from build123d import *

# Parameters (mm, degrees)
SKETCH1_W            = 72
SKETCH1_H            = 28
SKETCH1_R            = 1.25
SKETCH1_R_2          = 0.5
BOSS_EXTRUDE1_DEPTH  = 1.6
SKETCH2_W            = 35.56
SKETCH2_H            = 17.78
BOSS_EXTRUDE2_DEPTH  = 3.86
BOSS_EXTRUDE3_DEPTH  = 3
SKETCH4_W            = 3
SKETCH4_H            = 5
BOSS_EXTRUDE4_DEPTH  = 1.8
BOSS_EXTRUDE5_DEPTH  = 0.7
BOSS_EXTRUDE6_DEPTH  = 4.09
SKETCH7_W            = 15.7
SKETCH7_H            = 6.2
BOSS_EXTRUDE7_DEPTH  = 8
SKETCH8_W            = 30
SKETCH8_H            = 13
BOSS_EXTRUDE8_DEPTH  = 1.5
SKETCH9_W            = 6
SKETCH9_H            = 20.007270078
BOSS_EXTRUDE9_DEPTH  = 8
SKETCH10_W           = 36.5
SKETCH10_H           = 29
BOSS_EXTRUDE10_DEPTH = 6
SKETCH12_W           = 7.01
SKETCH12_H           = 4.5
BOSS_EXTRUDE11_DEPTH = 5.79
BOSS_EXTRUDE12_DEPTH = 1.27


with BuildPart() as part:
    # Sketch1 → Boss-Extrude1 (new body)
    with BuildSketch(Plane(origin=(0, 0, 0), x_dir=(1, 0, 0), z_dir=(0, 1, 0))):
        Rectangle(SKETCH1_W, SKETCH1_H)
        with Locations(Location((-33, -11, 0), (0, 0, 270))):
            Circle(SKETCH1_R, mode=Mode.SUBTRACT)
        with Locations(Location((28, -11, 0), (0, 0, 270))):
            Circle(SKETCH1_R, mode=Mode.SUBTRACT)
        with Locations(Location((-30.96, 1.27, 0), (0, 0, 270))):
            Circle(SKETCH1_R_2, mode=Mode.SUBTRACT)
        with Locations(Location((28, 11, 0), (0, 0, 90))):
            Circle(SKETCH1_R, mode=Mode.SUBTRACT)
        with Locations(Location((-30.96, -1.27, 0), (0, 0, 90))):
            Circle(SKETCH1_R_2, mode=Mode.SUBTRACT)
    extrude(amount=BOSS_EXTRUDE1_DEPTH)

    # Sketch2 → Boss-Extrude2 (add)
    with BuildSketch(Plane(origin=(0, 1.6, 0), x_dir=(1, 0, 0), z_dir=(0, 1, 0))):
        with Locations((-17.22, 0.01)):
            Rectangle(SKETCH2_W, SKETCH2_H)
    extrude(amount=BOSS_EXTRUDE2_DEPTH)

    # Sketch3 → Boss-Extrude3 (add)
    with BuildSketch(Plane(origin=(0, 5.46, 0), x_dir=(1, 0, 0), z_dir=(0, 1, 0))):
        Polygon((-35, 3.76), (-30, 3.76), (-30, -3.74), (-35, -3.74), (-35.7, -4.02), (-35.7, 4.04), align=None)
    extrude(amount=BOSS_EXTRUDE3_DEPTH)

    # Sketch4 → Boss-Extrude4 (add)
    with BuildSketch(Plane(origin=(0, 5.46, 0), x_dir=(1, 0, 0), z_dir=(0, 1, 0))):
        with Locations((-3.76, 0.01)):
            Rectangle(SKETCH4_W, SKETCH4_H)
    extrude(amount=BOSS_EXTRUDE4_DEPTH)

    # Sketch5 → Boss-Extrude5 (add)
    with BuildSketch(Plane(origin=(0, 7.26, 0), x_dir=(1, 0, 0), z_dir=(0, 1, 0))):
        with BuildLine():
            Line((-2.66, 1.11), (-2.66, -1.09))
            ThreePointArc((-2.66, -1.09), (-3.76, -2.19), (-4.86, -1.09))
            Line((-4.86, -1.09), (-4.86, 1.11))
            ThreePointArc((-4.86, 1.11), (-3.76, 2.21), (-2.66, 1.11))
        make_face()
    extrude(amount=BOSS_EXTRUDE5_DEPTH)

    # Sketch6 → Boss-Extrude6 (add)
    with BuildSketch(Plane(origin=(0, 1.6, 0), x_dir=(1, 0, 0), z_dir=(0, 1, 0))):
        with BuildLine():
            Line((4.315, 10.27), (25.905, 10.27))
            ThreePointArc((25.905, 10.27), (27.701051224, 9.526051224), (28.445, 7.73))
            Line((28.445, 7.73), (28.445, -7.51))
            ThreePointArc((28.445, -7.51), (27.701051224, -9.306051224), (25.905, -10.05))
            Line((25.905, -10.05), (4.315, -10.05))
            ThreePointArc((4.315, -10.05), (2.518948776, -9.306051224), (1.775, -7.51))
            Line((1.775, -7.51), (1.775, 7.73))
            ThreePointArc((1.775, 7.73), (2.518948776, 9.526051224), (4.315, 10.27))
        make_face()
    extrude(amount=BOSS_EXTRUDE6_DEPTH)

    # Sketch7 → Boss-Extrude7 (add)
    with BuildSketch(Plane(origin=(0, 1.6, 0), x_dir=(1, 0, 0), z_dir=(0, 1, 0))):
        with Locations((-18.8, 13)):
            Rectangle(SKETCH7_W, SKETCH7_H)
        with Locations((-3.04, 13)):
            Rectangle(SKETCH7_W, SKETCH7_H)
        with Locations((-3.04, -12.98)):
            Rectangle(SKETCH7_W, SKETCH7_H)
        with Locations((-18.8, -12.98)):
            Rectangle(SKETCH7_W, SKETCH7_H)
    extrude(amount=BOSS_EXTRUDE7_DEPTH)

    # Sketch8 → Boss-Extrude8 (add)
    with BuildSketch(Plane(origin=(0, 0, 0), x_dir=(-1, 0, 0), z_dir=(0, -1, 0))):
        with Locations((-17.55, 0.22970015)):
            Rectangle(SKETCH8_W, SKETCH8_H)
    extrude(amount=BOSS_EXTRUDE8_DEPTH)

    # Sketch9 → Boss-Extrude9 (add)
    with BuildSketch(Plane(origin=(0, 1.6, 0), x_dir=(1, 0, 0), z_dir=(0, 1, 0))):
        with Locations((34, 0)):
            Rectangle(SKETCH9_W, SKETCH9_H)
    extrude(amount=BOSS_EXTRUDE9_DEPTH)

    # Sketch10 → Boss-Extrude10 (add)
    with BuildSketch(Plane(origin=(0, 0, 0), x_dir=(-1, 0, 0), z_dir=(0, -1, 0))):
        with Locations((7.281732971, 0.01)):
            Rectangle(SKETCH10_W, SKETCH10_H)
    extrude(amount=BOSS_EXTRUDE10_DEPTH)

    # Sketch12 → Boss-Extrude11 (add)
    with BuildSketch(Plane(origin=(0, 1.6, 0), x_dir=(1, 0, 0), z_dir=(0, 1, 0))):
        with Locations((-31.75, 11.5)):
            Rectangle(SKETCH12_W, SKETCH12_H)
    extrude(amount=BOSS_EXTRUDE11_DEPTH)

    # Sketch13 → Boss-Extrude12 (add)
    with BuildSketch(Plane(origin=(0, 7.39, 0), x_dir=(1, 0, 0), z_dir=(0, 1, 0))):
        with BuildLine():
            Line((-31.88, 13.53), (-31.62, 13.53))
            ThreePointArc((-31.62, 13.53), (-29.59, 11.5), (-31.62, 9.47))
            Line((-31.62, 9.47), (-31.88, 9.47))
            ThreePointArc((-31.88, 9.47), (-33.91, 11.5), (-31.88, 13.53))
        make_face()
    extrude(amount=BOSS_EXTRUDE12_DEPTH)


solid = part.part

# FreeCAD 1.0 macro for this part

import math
import FreeCAD as App
import Part
import Sketcher
from FreeCAD import Vector
Q = App.Units.Quantity


def add_polygon(sketch, points):
    """Adds a closed chain of lines whose ends are joined by coincident constraints."""
    first, n = sketch.GeometryCount, len(points)
    for a, b in zip(points, points[1:] + points[:1]):
        sketch.addGeometry(Part.LineSegment(App.Vector(*a, 0), App.Vector(*b, 0)), False)
    for i in range(n):
        sketch.addConstraint(Sketcher.Constraint("Coincident", first + i, 2, first + (i + 1) % n, 1))

doc = App.newDocument("Part")
params = doc.addObject("Spreadsheet::Sheet", "Params")
for row, (alias, value) in enumerate([
    ("sketch1_diameter", "1 mm"),
    ("sketch1_diameter2", "2.5 mm"),
    ("sketch1_width", "72 mm"),
    ("sketch1_height", "28 mm"),
    ("pad1_length", "1.6 mm"),
    ("sketch2_width", "35.56 mm"),
    ("sketch2_height", "17.78 mm"),
    ("pad2_length", "3.86 mm"),
    ("sketch3_width", "5 mm"),
    ("sketch3_height", "7.5 mm"),
    ("sketch3_height2", "8.06 mm"),
    ("pad3_length", "3 mm"),
    ("sketch4_width", "3 mm"),
    ("sketch4_height", "5 mm"),
    ("pad4_length", "1.8 mm"),
    ("sketch5_radius", "1.1 mm"),
    ("sketch5_height", "2.2 mm"),
    ("pad5_length", "0.7 mm"),
    ("sketch6_radius", "2.54 mm"),
    ("sketch6_width", "21.59 mm"),
    ("sketch6_height", "15.24 mm"),
    ("pad6_length", "4.09 mm"),
    ("sketch7_width", "15.7 mm"),
    ("sketch7_height", "6.2 mm"),
    ("pad7_length", "8 mm"),
    ("sketch8_width", "30 mm"),
    ("sketch8_height", "13 mm"),
    ("pad8_length", "1.5 mm"),
    ("sketch9_width", "6 mm"),
    ("pad9_length", "8 mm"),
    ("sketch10_height", "29 mm"),
    ("sketch10_width", "36.5 mm"),
    ("pad10_length", "6 mm"),
    ("sketch11_height", "4.5 mm"),
    ("sketch11_width", "7.01 mm"),
    ("pad11_length", "5.79 mm"),
    ("sketch12_radius", "2.03 mm"),
    ("sketch12_width", "0.26 mm"),
    ("pad12_length", "1.27 mm"),
], start=1):
    params.set(f"A{row}", alias)
    params.set(f"B{row}", "=" + value)
    params.setAlias(f"B{row}", alias)

body = doc.addObject("PartDesign::Body", "Body")

sketch1 = body.newObject("Sketcher::SketchObject", "Sketch")
sketch1.AttachmentSupport = (doc.getObject("XZ_Plane"), [""])
sketch1.MapMode = "FlatFace"
add_polygon(sketch1, [(-36, -14), (-36, 14), (36, 14), (36, -14)])
sketch1.addGeometry(Part.Circle(Vector(-33, 11, 0), Vector(0, 0, 1), 1.25), False)
sketch1.addGeometry(Part.Circle(Vector(-30.96, 1.27, 0), Vector(0, 0, 1), 0.5), False)
sketch1.addGeometry(Part.Circle(Vector(28, 11, 0), Vector(0, 0, 1), 1.25), False)
sketch1.addGeometry(Part.Circle(Vector(-30.96, -1.27, 0), Vector(0, 0, 1), 0.5), False)
sketch1.addGeometry(Part.Circle(Vector(28, -11, 0), Vector(0, 0, 1), 1.25), False)
sketch1.addConstraint([
    Sketcher.Constraint("Vertical", 0),
    Sketcher.Constraint("Horizontal", 1),
    Sketcher.Constraint("Vertical", 2),
    Sketcher.Constraint("Horizontal", 3),
    Sketcher.Constraint("Equal", 4, 6),
    Sketcher.Constraint("Equal", 5, 7),
    Sketcher.Constraint("Equal", 6, 8),
    Sketcher.Constraint("Symmetric", 0, 2, 2, 2, -1, 1),
    Sketcher.Constraint("Symmetric", 5, 3, 7, 3, -1),
    Sketcher.Constraint("Symmetric", 6, 3, 8, 3, -1),
    Sketcher.Constraint("Horizontal", 4, 3, 6, 3),
    Sketcher.Constraint("Diameter", 5, Q("1 mm")),
    Sketcher.Constraint("Diameter", 4, Q("2.5 mm")),
    Sketcher.Constraint("DistanceX", 1, 1, 1, 2, Q("72 mm")),
    Sketcher.Constraint("DistanceY", 0, 1, 0, 2, Q("28 mm")),
    Sketcher.Constraint("DistanceX", 4, 3, -1, 1, Q("33 mm")),
    Sketcher.Constraint("DistanceY", -1, 1, 4, 3, Q("11 mm")),
    Sketcher.Constraint("DistanceX", -1, 1, 6, 3, Q("28 mm")),
    Sketcher.Constraint("DistanceX", 5, 3, -1, 1, Q("30.96 mm")),
    Sketcher.Constraint("DistanceY", -1, 1, 5, 3, Q("1.27 mm")),
])
sketch1.setExpression("Constraints[15]", "Params.sketch1_diameter")
sketch1.setExpression("Constraints[16]", "Params.sketch1_diameter2")
sketch1.setExpression("Constraints[17]", "Params.sketch1_width")
sketch1.setExpression("Constraints[18]", "Params.sketch1_height")
pad1 = body.newObject("PartDesign::Pad", "Pad")
pad1.Profile = sketch1
pad1.setExpression("Length", "Params.pad1_length")
pad1.Reversed = True

sketch2 = body.newObject("Sketcher::SketchObject", "Sketch001")
sketch2.AttachmentSupport = (doc.getObject("XZ_Plane"), [""])
sketch2.MapMode = "FlatFace"
sketch2.AttachmentOffset = App.Placement(Vector(0, 0, -1.6), App.Rotation())
add_polygon(sketch2, [(-35, -8.9), (-35, 8.88), (0.56, 8.88), (0.56, -8.9)])
sketch2.addConstraint([
    Sketcher.Constraint("Vertical", 0),
    Sketcher.Constraint("Horizontal", 1),
    Sketcher.Constraint("Vertical", 2),
    Sketcher.Constraint("Horizontal", 3),
    Sketcher.Constraint("DistanceX", 0, 2, -1, 1, Q("35 mm")),
    Sketcher.Constraint("DistanceX", 1, 1, 1, 2, Q("35.56 mm")),
    Sketcher.Constraint("DistanceY", 0, 1, 0, 2, Q("17.78 mm")),
    Sketcher.Constraint("DistanceY", 2, 2, -1, 1, Q("8.9 mm")),
])
sketch2.setExpression("Constraints[9]", "Params.sketch2_width")
sketch2.setExpression("Constraints[10]", "Params.sketch2_height")
pad2 = body.newObject("PartDesign::Pad", "Pad001")
pad2.Profile = sketch2
pad2.setExpression("Length", "Params.pad2_length")
pad2.Reversed = True

sketch3 = body.newObject("Sketcher::SketchObject", "Sketch002")
sketch3.AttachmentSupport = (doc.getObject("XZ_Plane"), [""])
sketch3.MapMode = "FlatFace"
sketch3.AttachmentOffset = App.Placement(Vector(0, 0, -5.46), App.Rotation())
add_polygon(sketch3, [(-30, -3.76), (-35, -3.76), (-35.7, -4.04), (-35.7, 4.02), (-35, 3.74), (-30, 3.74)])
sketch3.addConstraint([
    Sketcher.Constraint("Horizontal", 0),
    Sketcher.Constraint("Vertical", 2),
    Sketcher.Constraint("Horizontal", 4),
    Sketcher.Constraint("Vertical", 5),
    Sketcher.Constraint("Vertical", 0, 2, 3, 2),
    Sketcher.Constraint("Equal", 1, 3),
    Sketcher.Constraint("DistanceX", 0, 2, 0, 1, Q("5 mm")),
    Sketcher.Constraint("DistanceY", 5, 2, 5, 1, Q("7.5 mm")),
    Sketcher.Constraint("DistanceX", 0, 2, -1, 1, Q("35 mm")),
    Sketcher.Constraint("DistanceY", 2, 1, 2, 2, Q("8.06 mm")),
    Sketcher.Constraint("DistanceX", 1, 2, -1, 1, Q("35.7 mm")),
    Sketcher.Constraint("DistanceY", 0, 2, -1, 1, Q("3.76 mm")),
])
sketch3.setExpression("Constraints[12]", "Params.sketch3_width")
sketch3.setExpression("Constraints[13]", "Params.sketch3_height")
sketch3.setExpression("Constraints[15]", "Params.sketch3_height2")
pad3 = body.newObject("PartDesign::Pad", "Pad002")
pad3.Profile = sketch3
pad3.setExpression("Length", "Params.pad3_length")
pad3.Reversed = True

sketch4 = body.newObject("Sketcher::SketchObject", "Sketch003")
sketch4.AttachmentSupport = (doc.getObject("XZ_Plane"), [""])
sketch4.MapMode = "FlatFace"
sketch4.AttachmentOffset = App.Placement(Vector(0, 0, -5.46), App.Rotation())
add_polygon(sketch4, [(-5.26, -2.51), (-5.26, 2.49), (-2.26, 2.49), (-2.26, -2.51)])
sketch4.addConstraint([
    Sketcher.Constraint("Vertical", 0),
    Sketcher.Constraint("Horizontal", 1),
    Sketcher.Constraint("Vertical", 2),
    Sketcher.Constraint("Horizontal", 3),
    Sketcher.Constraint("DistanceX", 1, 1, 1, 2, Q("3 mm")),
    Sketcher.Constraint("DistanceY", 0, 1, 0, 2, Q("5 mm")),
    Sketcher.Constraint("DistanceX", 0, 2, -1, 1, Q("5.26 mm")),
    Sketcher.Constraint("DistanceY", -1, 1, 0, 2, Q("2.49 mm")),
])
sketch4.setExpression("Constraints[8]", "Params.sketch4_width")
sketch4.setExpression("Constraints[9]", "Params.sketch4_height")
pad4 = body.newObject("PartDesign::Pad", "Pad003")
pad4.Profile = sketch4
pad4.setExpression("Length", "Params.pad4_length")
pad4.Reversed = True

sketch5 = body.newObject("Sketcher::SketchObject", "Sketch004")
sketch5.AttachmentSupport = (doc.getObject("XZ_Plane"), [""])
sketch5.MapMode = "FlatFace"
sketch5.AttachmentOffset = App.Placement(Vector(0, 0, -7.26), App.Rotation())
sketch5.addGeometry([
    Part.LineSegment(Vector(-2.66, 1.09, 0), Vector(-2.66, -1.11, 0)),
    Part.ArcOfCircle(Part.Circle(Vector(-3.76, -1.11, 0), Vector(0, 0, 1), 1.1), math.radians(180), math.radians(360)),
    Part.LineSegment(Vector(-4.86, -1.11, 0), Vector(-4.86, 1.09, 0)),
    Part.ArcOfCircle(Part.Circle(Vector(-3.76, 1.09, 0), Vector(0, 0, 1), 1.1), math.radians(0), math.radians(180)),
], False)
sketch5.addConstraint([
    Sketcher.Constraint("Tangent", 0, 2, 1, 2),
    Sketcher.Constraint("Tangent", 1, 1, 2, 1),
    Sketcher.Constraint("Tangent", 2, 2, 3, 2),
    Sketcher.Constraint("Tangent", 3, 1, 0, 1),
    Sketcher.Constraint("Vertical", 0),
    Sketcher.Constraint("Vertical", 2),
    Sketcher.Constraint("Radius", 1, Q("1.1 mm")),
    Sketcher.Constraint("DistanceY", 0, 2, 0, 1, Q("2.2 mm")),
    Sketcher.Constraint("DistanceX", 1, 3, -1, 1, Q("3.76 mm")),
    Sketcher.Constraint("DistanceY", 1, 3, -1, 1, Q("1.11 mm")),
])
sketch5.setExpression("Constraints[6]", "Params.sketch5_radius")
sketch5.setExpression("Constraints[7]", "Params.sketch5_height")
pad5 = body.newObject("PartDesign::Pad", "Pad004")
pad5.Profile = sketch5
pad5.setExpression("Length", "Params.pad5_length")
pad5.Reversed = True

sketch6 = body.newObject("Sketcher::SketchObject", "Sketch005")
sketch6.AttachmentSupport = (doc.getObject("XZ_Plane"), [""])
sketch6.MapMode = "FlatFace"
sketch6.AttachmentOffset = App.Placement(Vector(0, 0, -1.6), App.Rotation())
sketch6.addGeometry([
    Part.LineSegment(Vector(25.905, -10.27, 0), Vector(4.315, -10.27, 0)),
    Part.ArcOfCircle(Part.Circle(Vector(4.315, -7.73, 0), Vector(0, 0, 1), 2.54), math.radians(-180), math.radians(-90)),
    Part.LineSegment(Vector(1.775, -7.73, 0), Vector(1.775, 7.51, 0)),
    Part.ArcOfCircle(Part.Circle(Vector(4.315, 7.51, 0), Vector(0, 0, 1), 2.54), math.radians(90), math.radians(180)),
    Part.LineSegment(Vector(4.315, 10.05, 0), Vector(25.905, 10.05, 0)),
    Part.ArcOfCircle(Part.Circle(Vector(25.905, 7.51, 0), Vector(0, 0, 1), 2.54), math.radians(0), math.radians(90)),
    Part.LineSegment(Vector(28.445, 7.51, 0), Vector(28.445, -7.73, 0)),
    Part.ArcOfCircle(Part.Circle(Vector(25.905, -7.73, 0), Vector(0, 0, 1), 2.54), math.radians(-90), math.radians(0)),
], False)
sketch6.addConstraint([
    Sketcher.Constraint("Tangent", 0, 2, 1, 2),
    Sketcher.Constraint("Tangent", 1, 1, 2, 1),
    Sketcher.Constraint("Tangent", 2, 2, 3, 2),
    Sketcher.Constraint("Tangent", 3, 1, 4, 1),
    Sketcher.Constraint("Tangent", 4, 2, 5, 2),
    Sketcher.Constraint("Tangent", 5, 1, 6, 1),
    Sketcher.Constraint("Tangent", 6, 2, 7, 2),
    Sketcher.Constraint("Tangent", 7, 1, 0, 1),
    Sketcher.Constraint("Horizontal", 0),
    Sketcher.Constraint("Vertical", 2),
    Sketcher.Constraint("Horizontal", 4),
    Sketcher.Constraint("Vertical", 6),
    Sketcher.Constraint("Equal", 1, 3),
    Sketcher.Constraint("Equal", 3, 5),
    Sketcher.Constraint("Equal", 5, 7),
    Sketcher.Constraint("Radius", 1, Q("2.54 mm")),
    Sketcher.Constraint("DistanceX", 0, 2, 0, 1, Q("21.59 mm")),
    Sketcher.Constraint("DistanceY", 2, 1, 2, 2, Q("15.24 mm")),
    Sketcher.Constraint("DistanceY", 1, 3, -1, 1, Q("7.73 mm")),
    Sketcher.Constraint("DistanceX", -1, 1, 1, 3, Q("4.315 mm")),
])
sketch6.setExpression("Constraints[15]", "Params.sketch6_radius")
sketch6.setExpression("Constraints[16]", "Params.sketch6_width")
sketch6.setExpression("Constraints[17]", "Params.sketch6_height")
pad6 = body.newObject("PartDesign::Pad", "Pad005")
pad6.Profile = sketch6
pad6.setExpression("Length", "Params.pad6_length")
pad6.Reversed = True

sketch7 = body.newObject("Sketcher::SketchObject", "Sketch006")
sketch7.AttachmentSupport = (doc.getObject("XZ_Plane"), [""])
sketch7.MapMode = "FlatFace"
sketch7.AttachmentOffset = App.Placement(Vector(0, 0, -1.6), App.Rotation())
add_polygon(sketch7, [(-26.65, -16.1), (-26.65, -9.9), (-10.95, -9.9), (-10.95, -16.1)])
add_polygon(sketch7, [(-10.89, -16.1), (-10.89, -9.9), (4.81, -9.9), (4.81, -16.1)])
add_polygon(sketch7, [(-10.89, 9.88), (-10.89, 16.08), (4.81, 16.08), (4.81, 9.88)])
add_polygon(sketch7, [(-26.65, 9.88), (-26.65, 16.08), (-10.95, 16.08), (-10.95, 9.88)])
sketch7.addConstraint([
    Sketcher.Constraint("Vertical", 0),
    Sketcher.Constraint("Horizontal", 1),
    Sketcher.Constraint("Vertical", 2),
    Sketcher.Constraint("Horizontal", 3),
    Sketcher.Constraint("Vertical", 4),
    Sketcher.Constraint("Horizontal", 5),
    Sketcher.Constraint("Vertical", 6),
    Sketcher.Constraint("Horizontal", 7),
    Sketcher.Constraint("Vertical", 8),
    Sketcher.Constraint("Horizontal", 9),
    Sketcher.Constraint("Vertical", 10),
    Sketcher.Constraint("Horizontal", 11),
    Sketcher.Constraint("Vertical", 12),
    Sketcher.Constraint("Horizontal", 13),
    Sketcher.Constraint("Vertical", 14),
    Sketcher.Constraint("Horizontal", 15),
    Sketcher.Constraint("Horizontal", 1, 2, 4, 2),
    Sketcher.Constraint("Horizontal", 3, 2, 6, 2),
    Sketcher.Constraint("Horizontal", 9, 2, 12, 2),
    Sketcher.Constraint("Horizontal", 11, 2, 14, 2),
    Sketcher.Constraint("Vertical", 7, 2, 8, 2),
    Sketcher.Constraint("Vertical", 6, 2, 9, 2),
    Sketcher.Constraint("Vertical", 3, 2, 12, 2),
    Sketcher.Constraint("Vertical", 2, 2, 13, 2),
    Sketcher.Constraint("Equal", 3, 5),
    Sketcher.Constraint("Equal", 6, 8),
    Sketcher.Constraint("DistanceX", 1, 1, 1, 2, Q("15.7 mm")),
    Sketcher.Constraint("DistanceY", 0, 1, 0, 2, Q("6.2 mm")),
    Sketcher.Constraint("DistanceY", 0, 2, -1, 1, Q("9.9 mm")),
    Sketcher.Constraint("DistanceX", 0, 2, -1, 1, Q("26.65 mm")),
    Sketcher.Constraint("DistanceX", 4, 2, -1, 1, Q("10.89 mm")),
    Sketcher.Constraint("DistanceY", -1, 1, 8, 2, Q("16.08 mm")),
])
sketch7.setExpression("Constraints[42]", "Params.sketch7_width")
sketch7.setExpression("Constraints[43]", "Params.sketch7_height")
pad7 = body.newObject("PartDesign::Pad", "Pad006")
pad7.Profile = sketch7
pad7.setExpression("Length", "Params.pad7_length")
pad7.Reversed = True

sketch8 = body.newObject("Sketcher::SketchObject", "Sketch007")
sketch8.AttachmentSupport = (doc.getObject("XZ_Plane"), [""])
sketch8.MapMode = "FlatFace"
add_polygon(sketch8, [(32.55, -6.7297), (32.55, 6.2703), (2.55, 6.2703), (2.55, -6.7297)])
sketch8.addConstraint([
    Sketcher.Constraint("Vertical", 0),
    Sketcher.Constraint("Horizontal", 1),
    Sketcher.Constraint("Vertical", 2),
    Sketcher.Constraint("Horizontal", 3),
    Sketcher.Constraint("DistanceX", 1, 2, 1, 1, Q("30 mm")),
    Sketcher.Constraint("DistanceY", 0, 1, 0, 2, Q("13 mm")),
    Sketcher.Constraint("DistanceX", -1, 1, 0, 2, Q("32.55 mm")),
    Sketcher.Constraint("DistanceY", -1, 1, 0, 2, Q("6.2703 mm")),
])
sketch8.setExpression("Constraints[8]", "Params.sketch8_width")
sketch8.setExpression("Constraints[9]", "Params.sketch8_height")
pad8 = body.newObject("PartDesign::Pad", "Pad007")
pad8.Profile = sketch8
pad8.setExpression("Length", "Params.pad8_length")

sketch9 = body.newObject("Sketcher::SketchObject", "Sketch008")
sketch9.AttachmentSupport = (doc.getObject("XZ_Plane"), [""])
sketch9.MapMode = "FlatFace"
sketch9.AttachmentOffset = App.Placement(Vector(0, 0, -1.6), App.Rotation())
add_polygon(sketch9, [(31, -10.003635), (31, 10.003635), (37, 10.003635), (37, -10.003635)])
sketch9.addConstraint([
    Sketcher.Constraint("Vertical", 0),
    Sketcher.Constraint("Horizontal", 1),
    Sketcher.Constraint("Vertical", 2),
    Sketcher.Constraint("Horizontal", 3),
    Sketcher.Constraint("DistanceX", 1, 1, 1, 2, Q("6 mm")),
    Sketcher.Constraint("DistanceX", -1, 1, 0, 2, Q("31 mm")),
    Sketcher.Constraint("DistanceY", 0, 1, 0, 2, Q("20.00727 mm")),
    Sketcher.Constraint("DistanceY", -1, 1, 0, 2, Q("10.003635 mm")),
])
sketch9.setExpression("Constraints[8]", "Params.sketch9_width")
pad9 = body.newObject("PartDesign::Pad", "Pad008")
pad9.Profile = sketch9
pad9.setExpression("Length", "Params.pad9_length")
pad9.Reversed = True

sketch10 = body.newObject("Sketcher::SketchObject", "Sketch009")
sketch10.AttachmentSupport = (doc.getObject("XZ_Plane"), [""])
sketch10.MapMode = "FlatFace"
add_polygon(sketch10, [(10.968267, -14.51), (10.968267, 14.49), (-25.531733, 14.49), (-25.531733, -14.51)])
sketch10.addConstraint([
    Sketcher.Constraint("Vertical", 0),
    Sketcher.Constraint("Horizontal", 1),
    Sketcher.Constraint("Vertical", 2),
    Sketcher.Constraint("Horizontal", 3),
    Sketcher.Constraint("DistanceY", 0, 1, 0, 2, Q("29 mm")),
    Sketcher.Constraint("DistanceX", 1, 2, 1, 1, Q("36.5 mm")),
    Sketcher.Constraint("DistanceY", -1, 1, 0, 2, Q("14.49 mm")),
    Sketcher.Constraint("DistanceX", -1, 1, 0, 2, Q("10.968267 mm")),
])
sketch10.setExpression("Constraints[8]", "Params.sketch10_height")
sketch10.setExpression("Constraints[9]", "Params.sketch10_width")
pad10 = body.newObject("PartDesign::Pad", "Pad009")
pad10.Profile = sketch10
pad10.setExpression("Length", "Params.pad10_length")

sketch11 = body.newObject("Sketcher::SketchObject", "Sketch010")
sketch11.AttachmentSupport = (doc.getObject("XZ_Plane"), [""])
sketch11.MapMode = "FlatFace"
sketch11.AttachmentOffset = App.Placement(Vector(0, 0, -1.6), App.Rotation())
add_polygon(sketch11, [(-35.255, -13.75), (-35.255, -9.25), (-28.245, -9.25), (-28.245, -13.75)])
sketch11.addConstraint([
    Sketcher.Constraint("Vertical", 0),
    Sketcher.Constraint("Horizontal", 1),
    Sketcher.Constraint("Vertical", 2),
    Sketcher.Constraint("Horizontal", 3),
    Sketcher.Constraint("DistanceY", 0, 1, 0, 2, Q("4.5 mm")),
    Sketcher.Constraint("DistanceX", 1, 1, 1, 2, Q("7.01 mm")),
    Sketcher.Constraint("DistanceY", 0, 2, -1, 1, Q("9.25 mm")),
    Sketcher.Constraint("DistanceX", 0, 2, -1, 1, Q("35.255 mm")),
])
sketch11.setExpression("Constraints[8]", "Params.sketch11_height")
sketch11.setExpression("Constraints[9]", "Params.sketch11_width")
pad11 = body.newObject("PartDesign::Pad", "Pad010")
pad11.Profile = sketch11
pad11.setExpression("Length", "Params.pad11_length")
pad11.Reversed = True

sketch12 = body.newObject("Sketcher::SketchObject", "Sketch011")
sketch12.AttachmentSupport = (doc.getObject("XZ_Plane"), [""])
sketch12.MapMode = "FlatFace"
sketch12.AttachmentOffset = App.Placement(Vector(0, 0, -7.39), App.Rotation())
sketch12.addGeometry([
    Part.LineSegment(Vector(-31.62, -13.53, 0), Vector(-31.88, -13.53, 0)),
    Part.ArcOfCircle(Part.Circle(Vector(-31.88, -11.5, 0), Vector(0, 0, 1), 2.03), math.radians(90), math.radians(270)),
    Part.LineSegment(Vector(-31.88, -9.47, 0), Vector(-31.62, -9.47, 0)),
    Part.ArcOfCircle(Part.Circle(Vector(-31.62, -11.5, 0), Vector(0, 0, 1), 2.03), math.radians(-90), math.radians(90)),
], False)
sketch12.addConstraint([
    Sketcher.Constraint("Tangent", 0, 2, 1, 2),
    Sketcher.Constraint("Tangent", 1, 1, 2, 1),
    Sketcher.Constraint("Tangent", 2, 2, 3, 2),
    Sketcher.Constraint("Tangent", 3, 1, 0, 1),
    Sketcher.Constraint("Horizontal", 0),
    Sketcher.Constraint("Horizontal", 2),
    Sketcher.Constraint("Radius", 1, Q("2.03 mm")),
    Sketcher.Constraint("DistanceX", 0, 2, 0, 1, Q("0.26 mm")),
    Sketcher.Constraint("DistanceY", 1, 3, -1, 1, Q("11.5 mm")),
    Sketcher.Constraint("DistanceX", 1, 3, -1, 1, Q("31.88 mm")),
])
sketch12.setExpression("Constraints[6]", "Params.sketch12_radius")
sketch12.setExpression("Constraints[7]", "Params.sketch12_width")
pad12 = body.newObject("PartDesign::Pad", "Pad011")
pad12.Profile = sketch12
pad12.setExpression("Length", "Params.pad12_length")
pad12.Reversed = True

doc.recompute()
